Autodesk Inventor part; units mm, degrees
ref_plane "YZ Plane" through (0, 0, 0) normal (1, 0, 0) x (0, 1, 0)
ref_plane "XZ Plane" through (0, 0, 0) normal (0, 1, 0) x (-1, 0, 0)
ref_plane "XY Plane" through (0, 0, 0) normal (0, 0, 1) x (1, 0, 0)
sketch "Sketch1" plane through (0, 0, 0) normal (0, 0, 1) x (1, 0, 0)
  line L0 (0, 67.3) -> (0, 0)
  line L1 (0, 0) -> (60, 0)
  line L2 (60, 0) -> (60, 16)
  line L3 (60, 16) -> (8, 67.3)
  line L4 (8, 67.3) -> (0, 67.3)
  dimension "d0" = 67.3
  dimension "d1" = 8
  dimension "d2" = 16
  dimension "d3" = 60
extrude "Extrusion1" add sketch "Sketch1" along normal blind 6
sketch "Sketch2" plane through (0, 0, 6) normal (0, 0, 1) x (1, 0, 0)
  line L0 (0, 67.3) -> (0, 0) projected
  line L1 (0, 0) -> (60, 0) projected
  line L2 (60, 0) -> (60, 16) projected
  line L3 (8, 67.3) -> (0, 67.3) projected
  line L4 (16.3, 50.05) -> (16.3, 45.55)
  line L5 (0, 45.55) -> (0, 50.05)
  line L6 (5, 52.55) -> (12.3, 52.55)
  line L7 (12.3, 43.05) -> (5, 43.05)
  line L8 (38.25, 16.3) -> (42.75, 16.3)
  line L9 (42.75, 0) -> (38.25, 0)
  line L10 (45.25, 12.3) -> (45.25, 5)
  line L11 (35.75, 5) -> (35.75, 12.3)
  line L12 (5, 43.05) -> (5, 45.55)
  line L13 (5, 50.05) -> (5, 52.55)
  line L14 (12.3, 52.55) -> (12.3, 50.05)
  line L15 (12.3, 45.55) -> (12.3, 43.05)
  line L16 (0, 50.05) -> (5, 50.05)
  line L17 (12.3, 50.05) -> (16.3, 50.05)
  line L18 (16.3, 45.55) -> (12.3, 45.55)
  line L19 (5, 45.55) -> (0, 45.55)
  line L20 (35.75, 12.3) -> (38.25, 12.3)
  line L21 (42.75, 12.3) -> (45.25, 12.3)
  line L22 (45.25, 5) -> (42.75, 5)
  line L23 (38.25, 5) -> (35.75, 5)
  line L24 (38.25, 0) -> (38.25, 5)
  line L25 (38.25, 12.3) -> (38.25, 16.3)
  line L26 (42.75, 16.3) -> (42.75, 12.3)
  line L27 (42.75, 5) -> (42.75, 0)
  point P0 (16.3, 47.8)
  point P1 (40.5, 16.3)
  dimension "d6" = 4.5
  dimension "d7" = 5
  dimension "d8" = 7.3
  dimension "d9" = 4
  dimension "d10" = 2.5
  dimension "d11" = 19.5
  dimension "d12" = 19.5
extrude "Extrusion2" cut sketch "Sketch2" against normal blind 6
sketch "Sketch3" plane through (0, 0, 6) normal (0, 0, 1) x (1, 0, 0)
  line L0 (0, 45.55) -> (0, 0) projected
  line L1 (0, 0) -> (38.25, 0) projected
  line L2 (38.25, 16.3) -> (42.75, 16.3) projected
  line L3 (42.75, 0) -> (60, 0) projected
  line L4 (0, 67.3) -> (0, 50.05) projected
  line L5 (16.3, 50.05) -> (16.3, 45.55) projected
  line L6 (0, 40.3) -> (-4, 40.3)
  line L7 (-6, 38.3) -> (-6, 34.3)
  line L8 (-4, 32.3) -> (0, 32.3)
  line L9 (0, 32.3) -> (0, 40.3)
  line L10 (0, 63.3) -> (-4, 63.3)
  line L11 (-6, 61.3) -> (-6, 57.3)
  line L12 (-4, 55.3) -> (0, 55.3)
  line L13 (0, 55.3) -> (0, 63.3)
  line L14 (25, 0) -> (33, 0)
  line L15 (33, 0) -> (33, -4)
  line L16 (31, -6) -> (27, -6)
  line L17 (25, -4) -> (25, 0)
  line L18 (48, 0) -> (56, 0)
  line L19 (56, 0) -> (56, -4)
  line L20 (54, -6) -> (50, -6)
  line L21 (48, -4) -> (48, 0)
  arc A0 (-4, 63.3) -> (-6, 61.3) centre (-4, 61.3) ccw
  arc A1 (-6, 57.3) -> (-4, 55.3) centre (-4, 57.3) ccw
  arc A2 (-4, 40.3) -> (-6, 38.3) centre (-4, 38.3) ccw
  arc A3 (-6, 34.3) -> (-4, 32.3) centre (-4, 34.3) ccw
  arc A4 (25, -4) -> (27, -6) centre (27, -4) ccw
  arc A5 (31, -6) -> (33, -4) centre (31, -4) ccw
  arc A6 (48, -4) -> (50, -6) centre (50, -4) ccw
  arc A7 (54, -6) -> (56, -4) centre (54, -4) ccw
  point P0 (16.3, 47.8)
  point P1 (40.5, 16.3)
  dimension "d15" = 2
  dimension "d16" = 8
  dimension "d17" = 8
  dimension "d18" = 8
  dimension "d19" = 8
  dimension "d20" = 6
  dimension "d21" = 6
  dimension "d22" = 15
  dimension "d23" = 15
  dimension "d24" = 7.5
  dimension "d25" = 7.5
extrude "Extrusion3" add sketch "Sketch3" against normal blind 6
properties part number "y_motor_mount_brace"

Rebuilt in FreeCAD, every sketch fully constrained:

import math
import FreeCAD as App
import Part
import Sketcher

V = App.Vector


def add_polygon(sketch, points):
    """Adds a closed chain of lines whose ends are joined by coincident constraints."""
    first, n = sketch.GeometryCount, len(points)
    for a, b in zip(points, points[1:] + points[:1]):
        sketch.addGeometry(Part.LineSegment(App.Vector(*a, 0), App.Vector(*b, 0)), False)
    for i in range(n):
        sketch.addConstraint(Sketcher.Constraint("Coincident", first + i, 2, first + (i + 1) % n, 1))

doc = App.newDocument("Part")
body = doc.addObject("PartDesign::Body", "Body")

# Sketch on XY plane
sketch1 = body.newObject("Sketcher::SketchObject", "Sketch")
sketch1.AttachmentSupport = (doc.getObject("XY_Plane"), [""])
sketch1.MapMode = "FlatFace"
add_polygon(sketch1, [(8, 67.3), (0, 67.3), (0, 0), (60, 0), (60, 16)])  # lines 0-4
sketch1.addConstraint([
    Sketcher.Constraint("Horizontal", 0),
    Sketcher.Constraint("Vertical", 1),
    Sketcher.Constraint("Horizontal", 2),
    Sketcher.Constraint("Vertical", 3),
    Sketcher.Constraint("Coincident", 1, 2, -1, 1),
    Sketcher.Constraint("DistanceX", 0, 2, 0, 1, 8.0),
    Sketcher.Constraint("DistanceX", 2, 1, 2, 2, 60.0),
    Sketcher.Constraint("DistanceY", 3, 1, 3, 2, 16.0),
    Sketcher.Constraint("DistanceY", 1, 2, 1, 1, 67.3),
])
pad1 = body.newObject("PartDesign::Pad", "Pad")
pad1.Profile = sketch1
pad1.Length = 6

# Sketch on XY plane
sketch2 = body.newObject("Sketcher::SketchObject", "Sketch001")
sketch2.AttachmentSupport = (doc.getObject("XY_Plane"), [""])
sketch2.MapMode = "FlatFace"
sketch2.AttachmentOffset = App.Placement(V(0, 0, 6), App.Rotation())
add_polygon(sketch2, [(5, 50.05), (0, 50.05), (0, 45.55), (5, 45.55), (5, 43.05), (12.3, 43.05), (12.3, 45.55), (16.3, 45.55), (16.3, 50.05), (12.3, 50.05), (12.3, 52.55), (5, 52.55)])  # lines 0-11
add_polygon(sketch2, [(38.25, 5), (38.25, 0), (42.75, 0), (42.75, 5), (45.25, 5), (45.25, 12.3), (42.75, 12.3), (42.75, 16.3), (38.25, 16.3), (38.25, 12.3), (35.75, 12.3), (35.75, 5)])  # lines 12-23
sketch2.addConstraint([
    Sketcher.Constraint("Horizontal", 0),
    Sketcher.Constraint("Vertical", 1),
    Sketcher.Constraint("Horizontal", 2),
    Sketcher.Constraint("Vertical", 3),
    Sketcher.Constraint("Horizontal", 4),
    Sketcher.Constraint("Vertical", 5),
    Sketcher.Constraint("Horizontal", 6),
    Sketcher.Constraint("Vertical", 7),
    Sketcher.Constraint("Horizontal", 8),
    Sketcher.Constraint("Vertical", 9),
    Sketcher.Constraint("Horizontal", 10),
    Sketcher.Constraint("Vertical", 11),
    Sketcher.Constraint("Vertical", 12),
    Sketcher.Constraint("Horizontal", 13),
    Sketcher.Constraint("Vertical", 14),
    Sketcher.Constraint("Horizontal", 15),
    Sketcher.Constraint("Vertical", 16),
    Sketcher.Constraint("Horizontal", 17),
    Sketcher.Constraint("Vertical", 18),
    Sketcher.Constraint("Horizontal", 19),
    Sketcher.Constraint("Vertical", 20),
    Sketcher.Constraint("Horizontal", 21),
    Sketcher.Constraint("Vertical", 22),
    Sketcher.Constraint("Horizontal", 23),
    Sketcher.Constraint("PointOnObject", 0, 2, -2),
    Sketcher.Constraint("PointOnObject", 12, 2, -1),
    Sketcher.Constraint("Horizontal", 2, 2, 5, 2),
    Sketcher.Constraint("Horizontal", 0, 2, 7, 2),
    Sketcher.Constraint("Horizontal", 17, 2, 20, 2),
    Sketcher.Constraint("Horizontal", 15, 2, 22, 2),
    Sketcher.Constraint("Vertical", 5, 2, 8, 2),
    Sketcher.Constraint("Vertical", 3, 2, 10, 2),
    Sketcher.Constraint("Vertical", 14, 2, 17, 2),
    Sketcher.Constraint("Vertical", 12, 2, 19, 2),
    Sketcher.Constraint("Equal", 17, 21),
    Sketcher.Constraint("Equal", 19, 1),
    Sketcher.Constraint("Equal", 23, 3),
    Sketcher.Constraint("Equal", 5, 9),
    Sketcher.Constraint("Equal", 2, 12),
    Sketcher.Constraint("Equal", 10, 16),
    Sketcher.Constraint("Equal", 8, 18),
    Sketcher.Constraint("DistanceX", 0, 2, 0, 1, 5.0),
    Sketcher.Constraint("DistanceX", 6, 1, 6, 2, 4.0),
    Sketcher.Constraint("DistanceX", 4, 1, 4, 2, 7.3),
    Sketcher.Constraint("DistanceX", 13, 1, 13, 2, 4.5),
    Sketcher.Constraint("DistanceX", 15, 1, 15, 2, 2.5),
    Sketcher.Constraint("DistanceY", -1, 1, 0, 2, 50.05),
    Sketcher.Constraint("DistanceX", -1, 1, 12, 2, 38.25),
])
pocket1 = body.newObject("PartDesign::Pocket", "Pocket")
pocket1.Profile = sketch2
pocket1.Length = 6

# Sketch on XY plane
sketch3 = body.newObject("Sketcher::SketchObject", "Sketch002")
sketch3.AttachmentSupport = (doc.getObject("XY_Plane"), [""])
sketch3.MapMode = "FlatFace"
sketch3.AttachmentOffset = App.Placement(V(0, 0, 6), App.Rotation())
sketch3.addGeometry([
    Part.LineSegment(V(33, 0, 0), V(25, 0, 0)),  # 0
    Part.LineSegment(V(25, 0, 0), V(25, -4, 0)),  # 1
    Part.ArcOfCircle(Part.Circle(V(27, -4, 0), V(0, 0, 1), 2), math.radians(180), math.radians(270)),  # 2
    Part.LineSegment(V(27, -6, 0), V(31, -6, 0)),  # 3
    Part.ArcOfCircle(Part.Circle(V(31, -4, 0), V(0, 0, 1), 2), math.radians(-90), math.radians(0)),  # 4
    Part.LineSegment(V(33, -4, 0), V(33, 0, 0)),  # 5
    Part.LineSegment(V(0, 32.3, 0), V(0, 40.3, 0)),  # 6
    Part.LineSegment(V(0, 40.3, 0), V(-4, 40.3, 0)),  # 7
    Part.ArcOfCircle(Part.Circle(V(-4, 38.3, 0), V(0, 0, 1), 2), math.radians(90), math.radians(180)),  # 8
    Part.LineSegment(V(-6, 38.3, 0), V(-6, 34.3, 0)),  # 9
    Part.ArcOfCircle(Part.Circle(V(-4, 34.3, 0), V(0, 0, 1), 2), math.radians(180), math.radians(270)),  # 10
    Part.LineSegment(V(-4, 32.3, 0), V(0, 32.3, 0)),  # 11
    Part.LineSegment(V(56, 0, 0), V(48, 0, 0)),  # 12
    Part.LineSegment(V(48, 0, 0), V(48, -4, 0)),  # 13
    Part.ArcOfCircle(Part.Circle(V(50, -4, 0), V(0, 0, 1), 2), math.radians(180), math.radians(270)),  # 14
    Part.LineSegment(V(50, -6, 0), V(54, -6, 0)),  # 15
    Part.ArcOfCircle(Part.Circle(V(54, -4, 0), V(0, 0, 1), 2), math.radians(-90), math.radians(0)),  # 16
    Part.LineSegment(V(56, -4, 0), V(56, 0, 0)),  # 17
    Part.LineSegment(V(0, 55.3, 0), V(0, 63.3, 0)),  # 18
    Part.LineSegment(V(0, 63.3, 0), V(-4, 63.3, 0)),  # 19
    Part.ArcOfCircle(Part.Circle(V(-4, 61.3, 0), V(0, 0, 1), 2), math.radians(90), math.radians(180)),  # 20
    Part.LineSegment(V(-6, 61.3, 0), V(-6, 57.3, 0)),  # 21
    Part.ArcOfCircle(Part.Circle(V(-4, 57.3, 0), V(0, 0, 1), 2), math.radians(180), math.radians(270)),  # 22
    Part.LineSegment(V(-4, 55.3, 0), V(0, 55.3, 0)),  # 23
], False)
sketch3.addConstraint([
    Sketcher.Constraint("Coincident", 0, 2, 1, 1),
    Sketcher.Constraint("Tangent", 1, 2, 2, 1),
    Sketcher.Constraint("Tangent", 2, 2, 3, 1),
    Sketcher.Constraint("Tangent", 3, 2, 4, 1),
    Sketcher.Constraint("Tangent", 4, 2, 5, 1),
    Sketcher.Constraint("Coincident", 5, 2, 0, 1),
    Sketcher.Constraint("Coincident", 6, 2, 7, 1),
    Sketcher.Constraint("Tangent", 7, 2, 8, 1),
    Sketcher.Constraint("Tangent", 8, 2, 9, 1),
    Sketcher.Constraint("Tangent", 9, 2, 10, 1),
    Sketcher.Constraint("Tangent", 10, 2, 11, 1),
    Sketcher.Constraint("Coincident", 11, 2, 6, 1),
    Sketcher.Constraint("Coincident", 12, 2, 13, 1),
    Sketcher.Constraint("Tangent", 13, 2, 14, 1),
    Sketcher.Constraint("Tangent", 14, 2, 15, 1),
    Sketcher.Constraint("Tangent", 15, 2, 16, 1),
    Sketcher.Constraint("Tangent", 16, 2, 17, 1),
    Sketcher.Constraint("Coincident", 17, 2, 12, 1),
    Sketcher.Constraint("Coincident", 18, 2, 19, 1),
    Sketcher.Constraint("Tangent", 19, 2, 20, 1),
    Sketcher.Constraint("Tangent", 20, 2, 21, 1),
    Sketcher.Constraint("Tangent", 21, 2, 22, 1),
    Sketcher.Constraint("Tangent", 22, 2, 23, 1),
    Sketcher.Constraint("Coincident", 23, 2, 18, 1),
    Sketcher.Constraint("Horizontal", 0),
    Sketcher.Constraint("Vertical", 1),
    Sketcher.Constraint("Horizontal", 3),
    Sketcher.Constraint("Vertical", 5),
    Sketcher.Constraint("Vertical", 6),
    Sketcher.Constraint("Horizontal", 7),
    Sketcher.Constraint("Vertical", 9),
    Sketcher.Constraint("Horizontal", 11),
    Sketcher.Constraint("Horizontal", 12),
    Sketcher.Constraint("Vertical", 13),
    Sketcher.Constraint("Horizontal", 15),
    Sketcher.Constraint("Vertical", 17),
    Sketcher.Constraint("Vertical", 18),
    Sketcher.Constraint("Horizontal", 19),
    Sketcher.Constraint("Vertical", 21),
    Sketcher.Constraint("Horizontal", 23),
    Sketcher.Constraint("Equal", 2, 4),
    Sketcher.Constraint("Equal", 4, 8),
    Sketcher.Constraint("Equal", 8, 10),
    Sketcher.Constraint("Equal", 10, 14),
    Sketcher.Constraint("Equal", 14, 16),
    Sketcher.Constraint("Equal", 16, 20),
    Sketcher.Constraint("Equal", 20, 22),
    Sketcher.Constraint("PointOnObject", 0, 2, -1),
    Sketcher.Constraint("PointOnObject", 6, 2, -2),
    Sketcher.Constraint("PointOnObject", 12, 2, -1),
    Sketcher.Constraint("PointOnObject", 18, 2, -2),
    Sketcher.Constraint("Horizontal", 4, 3, 14, 3),
    Sketcher.Constraint("Vertical", 10, 3, 20, 3),
    Sketcher.Constraint("Equal", 3, 7),
    Sketcher.Constraint("Equal", 0, 12),
    Sketcher.Constraint("Equal", 23, 1),
    Sketcher.Constraint("Equal", 12, 6),
    Sketcher.Constraint("Equal", 6, 18),
    Sketcher.Constraint("Radius", 2, 2.0),
    Sketcher.Constraint("DistanceX", 0, 2, 0, 1, 8.0),
    Sketcher.Constraint("DistanceX", 5, 2, 12, 2, 15.0),
    Sketcher.Constraint("DistanceX", -1, 1, 2, 3, 27.0),
    Sketcher.Constraint("DistanceY", 8, 3, 20, 3, 23.0),
    Sketcher.Constraint("DistanceY", -1, 1, 8, 3, 38.3),
])
pad2 = body.newObject("PartDesign::Pad", "Pad001")
pad2.Profile = sketch3
pad2.Length = 6
pad2.Reversed = True

doc.recompute()
